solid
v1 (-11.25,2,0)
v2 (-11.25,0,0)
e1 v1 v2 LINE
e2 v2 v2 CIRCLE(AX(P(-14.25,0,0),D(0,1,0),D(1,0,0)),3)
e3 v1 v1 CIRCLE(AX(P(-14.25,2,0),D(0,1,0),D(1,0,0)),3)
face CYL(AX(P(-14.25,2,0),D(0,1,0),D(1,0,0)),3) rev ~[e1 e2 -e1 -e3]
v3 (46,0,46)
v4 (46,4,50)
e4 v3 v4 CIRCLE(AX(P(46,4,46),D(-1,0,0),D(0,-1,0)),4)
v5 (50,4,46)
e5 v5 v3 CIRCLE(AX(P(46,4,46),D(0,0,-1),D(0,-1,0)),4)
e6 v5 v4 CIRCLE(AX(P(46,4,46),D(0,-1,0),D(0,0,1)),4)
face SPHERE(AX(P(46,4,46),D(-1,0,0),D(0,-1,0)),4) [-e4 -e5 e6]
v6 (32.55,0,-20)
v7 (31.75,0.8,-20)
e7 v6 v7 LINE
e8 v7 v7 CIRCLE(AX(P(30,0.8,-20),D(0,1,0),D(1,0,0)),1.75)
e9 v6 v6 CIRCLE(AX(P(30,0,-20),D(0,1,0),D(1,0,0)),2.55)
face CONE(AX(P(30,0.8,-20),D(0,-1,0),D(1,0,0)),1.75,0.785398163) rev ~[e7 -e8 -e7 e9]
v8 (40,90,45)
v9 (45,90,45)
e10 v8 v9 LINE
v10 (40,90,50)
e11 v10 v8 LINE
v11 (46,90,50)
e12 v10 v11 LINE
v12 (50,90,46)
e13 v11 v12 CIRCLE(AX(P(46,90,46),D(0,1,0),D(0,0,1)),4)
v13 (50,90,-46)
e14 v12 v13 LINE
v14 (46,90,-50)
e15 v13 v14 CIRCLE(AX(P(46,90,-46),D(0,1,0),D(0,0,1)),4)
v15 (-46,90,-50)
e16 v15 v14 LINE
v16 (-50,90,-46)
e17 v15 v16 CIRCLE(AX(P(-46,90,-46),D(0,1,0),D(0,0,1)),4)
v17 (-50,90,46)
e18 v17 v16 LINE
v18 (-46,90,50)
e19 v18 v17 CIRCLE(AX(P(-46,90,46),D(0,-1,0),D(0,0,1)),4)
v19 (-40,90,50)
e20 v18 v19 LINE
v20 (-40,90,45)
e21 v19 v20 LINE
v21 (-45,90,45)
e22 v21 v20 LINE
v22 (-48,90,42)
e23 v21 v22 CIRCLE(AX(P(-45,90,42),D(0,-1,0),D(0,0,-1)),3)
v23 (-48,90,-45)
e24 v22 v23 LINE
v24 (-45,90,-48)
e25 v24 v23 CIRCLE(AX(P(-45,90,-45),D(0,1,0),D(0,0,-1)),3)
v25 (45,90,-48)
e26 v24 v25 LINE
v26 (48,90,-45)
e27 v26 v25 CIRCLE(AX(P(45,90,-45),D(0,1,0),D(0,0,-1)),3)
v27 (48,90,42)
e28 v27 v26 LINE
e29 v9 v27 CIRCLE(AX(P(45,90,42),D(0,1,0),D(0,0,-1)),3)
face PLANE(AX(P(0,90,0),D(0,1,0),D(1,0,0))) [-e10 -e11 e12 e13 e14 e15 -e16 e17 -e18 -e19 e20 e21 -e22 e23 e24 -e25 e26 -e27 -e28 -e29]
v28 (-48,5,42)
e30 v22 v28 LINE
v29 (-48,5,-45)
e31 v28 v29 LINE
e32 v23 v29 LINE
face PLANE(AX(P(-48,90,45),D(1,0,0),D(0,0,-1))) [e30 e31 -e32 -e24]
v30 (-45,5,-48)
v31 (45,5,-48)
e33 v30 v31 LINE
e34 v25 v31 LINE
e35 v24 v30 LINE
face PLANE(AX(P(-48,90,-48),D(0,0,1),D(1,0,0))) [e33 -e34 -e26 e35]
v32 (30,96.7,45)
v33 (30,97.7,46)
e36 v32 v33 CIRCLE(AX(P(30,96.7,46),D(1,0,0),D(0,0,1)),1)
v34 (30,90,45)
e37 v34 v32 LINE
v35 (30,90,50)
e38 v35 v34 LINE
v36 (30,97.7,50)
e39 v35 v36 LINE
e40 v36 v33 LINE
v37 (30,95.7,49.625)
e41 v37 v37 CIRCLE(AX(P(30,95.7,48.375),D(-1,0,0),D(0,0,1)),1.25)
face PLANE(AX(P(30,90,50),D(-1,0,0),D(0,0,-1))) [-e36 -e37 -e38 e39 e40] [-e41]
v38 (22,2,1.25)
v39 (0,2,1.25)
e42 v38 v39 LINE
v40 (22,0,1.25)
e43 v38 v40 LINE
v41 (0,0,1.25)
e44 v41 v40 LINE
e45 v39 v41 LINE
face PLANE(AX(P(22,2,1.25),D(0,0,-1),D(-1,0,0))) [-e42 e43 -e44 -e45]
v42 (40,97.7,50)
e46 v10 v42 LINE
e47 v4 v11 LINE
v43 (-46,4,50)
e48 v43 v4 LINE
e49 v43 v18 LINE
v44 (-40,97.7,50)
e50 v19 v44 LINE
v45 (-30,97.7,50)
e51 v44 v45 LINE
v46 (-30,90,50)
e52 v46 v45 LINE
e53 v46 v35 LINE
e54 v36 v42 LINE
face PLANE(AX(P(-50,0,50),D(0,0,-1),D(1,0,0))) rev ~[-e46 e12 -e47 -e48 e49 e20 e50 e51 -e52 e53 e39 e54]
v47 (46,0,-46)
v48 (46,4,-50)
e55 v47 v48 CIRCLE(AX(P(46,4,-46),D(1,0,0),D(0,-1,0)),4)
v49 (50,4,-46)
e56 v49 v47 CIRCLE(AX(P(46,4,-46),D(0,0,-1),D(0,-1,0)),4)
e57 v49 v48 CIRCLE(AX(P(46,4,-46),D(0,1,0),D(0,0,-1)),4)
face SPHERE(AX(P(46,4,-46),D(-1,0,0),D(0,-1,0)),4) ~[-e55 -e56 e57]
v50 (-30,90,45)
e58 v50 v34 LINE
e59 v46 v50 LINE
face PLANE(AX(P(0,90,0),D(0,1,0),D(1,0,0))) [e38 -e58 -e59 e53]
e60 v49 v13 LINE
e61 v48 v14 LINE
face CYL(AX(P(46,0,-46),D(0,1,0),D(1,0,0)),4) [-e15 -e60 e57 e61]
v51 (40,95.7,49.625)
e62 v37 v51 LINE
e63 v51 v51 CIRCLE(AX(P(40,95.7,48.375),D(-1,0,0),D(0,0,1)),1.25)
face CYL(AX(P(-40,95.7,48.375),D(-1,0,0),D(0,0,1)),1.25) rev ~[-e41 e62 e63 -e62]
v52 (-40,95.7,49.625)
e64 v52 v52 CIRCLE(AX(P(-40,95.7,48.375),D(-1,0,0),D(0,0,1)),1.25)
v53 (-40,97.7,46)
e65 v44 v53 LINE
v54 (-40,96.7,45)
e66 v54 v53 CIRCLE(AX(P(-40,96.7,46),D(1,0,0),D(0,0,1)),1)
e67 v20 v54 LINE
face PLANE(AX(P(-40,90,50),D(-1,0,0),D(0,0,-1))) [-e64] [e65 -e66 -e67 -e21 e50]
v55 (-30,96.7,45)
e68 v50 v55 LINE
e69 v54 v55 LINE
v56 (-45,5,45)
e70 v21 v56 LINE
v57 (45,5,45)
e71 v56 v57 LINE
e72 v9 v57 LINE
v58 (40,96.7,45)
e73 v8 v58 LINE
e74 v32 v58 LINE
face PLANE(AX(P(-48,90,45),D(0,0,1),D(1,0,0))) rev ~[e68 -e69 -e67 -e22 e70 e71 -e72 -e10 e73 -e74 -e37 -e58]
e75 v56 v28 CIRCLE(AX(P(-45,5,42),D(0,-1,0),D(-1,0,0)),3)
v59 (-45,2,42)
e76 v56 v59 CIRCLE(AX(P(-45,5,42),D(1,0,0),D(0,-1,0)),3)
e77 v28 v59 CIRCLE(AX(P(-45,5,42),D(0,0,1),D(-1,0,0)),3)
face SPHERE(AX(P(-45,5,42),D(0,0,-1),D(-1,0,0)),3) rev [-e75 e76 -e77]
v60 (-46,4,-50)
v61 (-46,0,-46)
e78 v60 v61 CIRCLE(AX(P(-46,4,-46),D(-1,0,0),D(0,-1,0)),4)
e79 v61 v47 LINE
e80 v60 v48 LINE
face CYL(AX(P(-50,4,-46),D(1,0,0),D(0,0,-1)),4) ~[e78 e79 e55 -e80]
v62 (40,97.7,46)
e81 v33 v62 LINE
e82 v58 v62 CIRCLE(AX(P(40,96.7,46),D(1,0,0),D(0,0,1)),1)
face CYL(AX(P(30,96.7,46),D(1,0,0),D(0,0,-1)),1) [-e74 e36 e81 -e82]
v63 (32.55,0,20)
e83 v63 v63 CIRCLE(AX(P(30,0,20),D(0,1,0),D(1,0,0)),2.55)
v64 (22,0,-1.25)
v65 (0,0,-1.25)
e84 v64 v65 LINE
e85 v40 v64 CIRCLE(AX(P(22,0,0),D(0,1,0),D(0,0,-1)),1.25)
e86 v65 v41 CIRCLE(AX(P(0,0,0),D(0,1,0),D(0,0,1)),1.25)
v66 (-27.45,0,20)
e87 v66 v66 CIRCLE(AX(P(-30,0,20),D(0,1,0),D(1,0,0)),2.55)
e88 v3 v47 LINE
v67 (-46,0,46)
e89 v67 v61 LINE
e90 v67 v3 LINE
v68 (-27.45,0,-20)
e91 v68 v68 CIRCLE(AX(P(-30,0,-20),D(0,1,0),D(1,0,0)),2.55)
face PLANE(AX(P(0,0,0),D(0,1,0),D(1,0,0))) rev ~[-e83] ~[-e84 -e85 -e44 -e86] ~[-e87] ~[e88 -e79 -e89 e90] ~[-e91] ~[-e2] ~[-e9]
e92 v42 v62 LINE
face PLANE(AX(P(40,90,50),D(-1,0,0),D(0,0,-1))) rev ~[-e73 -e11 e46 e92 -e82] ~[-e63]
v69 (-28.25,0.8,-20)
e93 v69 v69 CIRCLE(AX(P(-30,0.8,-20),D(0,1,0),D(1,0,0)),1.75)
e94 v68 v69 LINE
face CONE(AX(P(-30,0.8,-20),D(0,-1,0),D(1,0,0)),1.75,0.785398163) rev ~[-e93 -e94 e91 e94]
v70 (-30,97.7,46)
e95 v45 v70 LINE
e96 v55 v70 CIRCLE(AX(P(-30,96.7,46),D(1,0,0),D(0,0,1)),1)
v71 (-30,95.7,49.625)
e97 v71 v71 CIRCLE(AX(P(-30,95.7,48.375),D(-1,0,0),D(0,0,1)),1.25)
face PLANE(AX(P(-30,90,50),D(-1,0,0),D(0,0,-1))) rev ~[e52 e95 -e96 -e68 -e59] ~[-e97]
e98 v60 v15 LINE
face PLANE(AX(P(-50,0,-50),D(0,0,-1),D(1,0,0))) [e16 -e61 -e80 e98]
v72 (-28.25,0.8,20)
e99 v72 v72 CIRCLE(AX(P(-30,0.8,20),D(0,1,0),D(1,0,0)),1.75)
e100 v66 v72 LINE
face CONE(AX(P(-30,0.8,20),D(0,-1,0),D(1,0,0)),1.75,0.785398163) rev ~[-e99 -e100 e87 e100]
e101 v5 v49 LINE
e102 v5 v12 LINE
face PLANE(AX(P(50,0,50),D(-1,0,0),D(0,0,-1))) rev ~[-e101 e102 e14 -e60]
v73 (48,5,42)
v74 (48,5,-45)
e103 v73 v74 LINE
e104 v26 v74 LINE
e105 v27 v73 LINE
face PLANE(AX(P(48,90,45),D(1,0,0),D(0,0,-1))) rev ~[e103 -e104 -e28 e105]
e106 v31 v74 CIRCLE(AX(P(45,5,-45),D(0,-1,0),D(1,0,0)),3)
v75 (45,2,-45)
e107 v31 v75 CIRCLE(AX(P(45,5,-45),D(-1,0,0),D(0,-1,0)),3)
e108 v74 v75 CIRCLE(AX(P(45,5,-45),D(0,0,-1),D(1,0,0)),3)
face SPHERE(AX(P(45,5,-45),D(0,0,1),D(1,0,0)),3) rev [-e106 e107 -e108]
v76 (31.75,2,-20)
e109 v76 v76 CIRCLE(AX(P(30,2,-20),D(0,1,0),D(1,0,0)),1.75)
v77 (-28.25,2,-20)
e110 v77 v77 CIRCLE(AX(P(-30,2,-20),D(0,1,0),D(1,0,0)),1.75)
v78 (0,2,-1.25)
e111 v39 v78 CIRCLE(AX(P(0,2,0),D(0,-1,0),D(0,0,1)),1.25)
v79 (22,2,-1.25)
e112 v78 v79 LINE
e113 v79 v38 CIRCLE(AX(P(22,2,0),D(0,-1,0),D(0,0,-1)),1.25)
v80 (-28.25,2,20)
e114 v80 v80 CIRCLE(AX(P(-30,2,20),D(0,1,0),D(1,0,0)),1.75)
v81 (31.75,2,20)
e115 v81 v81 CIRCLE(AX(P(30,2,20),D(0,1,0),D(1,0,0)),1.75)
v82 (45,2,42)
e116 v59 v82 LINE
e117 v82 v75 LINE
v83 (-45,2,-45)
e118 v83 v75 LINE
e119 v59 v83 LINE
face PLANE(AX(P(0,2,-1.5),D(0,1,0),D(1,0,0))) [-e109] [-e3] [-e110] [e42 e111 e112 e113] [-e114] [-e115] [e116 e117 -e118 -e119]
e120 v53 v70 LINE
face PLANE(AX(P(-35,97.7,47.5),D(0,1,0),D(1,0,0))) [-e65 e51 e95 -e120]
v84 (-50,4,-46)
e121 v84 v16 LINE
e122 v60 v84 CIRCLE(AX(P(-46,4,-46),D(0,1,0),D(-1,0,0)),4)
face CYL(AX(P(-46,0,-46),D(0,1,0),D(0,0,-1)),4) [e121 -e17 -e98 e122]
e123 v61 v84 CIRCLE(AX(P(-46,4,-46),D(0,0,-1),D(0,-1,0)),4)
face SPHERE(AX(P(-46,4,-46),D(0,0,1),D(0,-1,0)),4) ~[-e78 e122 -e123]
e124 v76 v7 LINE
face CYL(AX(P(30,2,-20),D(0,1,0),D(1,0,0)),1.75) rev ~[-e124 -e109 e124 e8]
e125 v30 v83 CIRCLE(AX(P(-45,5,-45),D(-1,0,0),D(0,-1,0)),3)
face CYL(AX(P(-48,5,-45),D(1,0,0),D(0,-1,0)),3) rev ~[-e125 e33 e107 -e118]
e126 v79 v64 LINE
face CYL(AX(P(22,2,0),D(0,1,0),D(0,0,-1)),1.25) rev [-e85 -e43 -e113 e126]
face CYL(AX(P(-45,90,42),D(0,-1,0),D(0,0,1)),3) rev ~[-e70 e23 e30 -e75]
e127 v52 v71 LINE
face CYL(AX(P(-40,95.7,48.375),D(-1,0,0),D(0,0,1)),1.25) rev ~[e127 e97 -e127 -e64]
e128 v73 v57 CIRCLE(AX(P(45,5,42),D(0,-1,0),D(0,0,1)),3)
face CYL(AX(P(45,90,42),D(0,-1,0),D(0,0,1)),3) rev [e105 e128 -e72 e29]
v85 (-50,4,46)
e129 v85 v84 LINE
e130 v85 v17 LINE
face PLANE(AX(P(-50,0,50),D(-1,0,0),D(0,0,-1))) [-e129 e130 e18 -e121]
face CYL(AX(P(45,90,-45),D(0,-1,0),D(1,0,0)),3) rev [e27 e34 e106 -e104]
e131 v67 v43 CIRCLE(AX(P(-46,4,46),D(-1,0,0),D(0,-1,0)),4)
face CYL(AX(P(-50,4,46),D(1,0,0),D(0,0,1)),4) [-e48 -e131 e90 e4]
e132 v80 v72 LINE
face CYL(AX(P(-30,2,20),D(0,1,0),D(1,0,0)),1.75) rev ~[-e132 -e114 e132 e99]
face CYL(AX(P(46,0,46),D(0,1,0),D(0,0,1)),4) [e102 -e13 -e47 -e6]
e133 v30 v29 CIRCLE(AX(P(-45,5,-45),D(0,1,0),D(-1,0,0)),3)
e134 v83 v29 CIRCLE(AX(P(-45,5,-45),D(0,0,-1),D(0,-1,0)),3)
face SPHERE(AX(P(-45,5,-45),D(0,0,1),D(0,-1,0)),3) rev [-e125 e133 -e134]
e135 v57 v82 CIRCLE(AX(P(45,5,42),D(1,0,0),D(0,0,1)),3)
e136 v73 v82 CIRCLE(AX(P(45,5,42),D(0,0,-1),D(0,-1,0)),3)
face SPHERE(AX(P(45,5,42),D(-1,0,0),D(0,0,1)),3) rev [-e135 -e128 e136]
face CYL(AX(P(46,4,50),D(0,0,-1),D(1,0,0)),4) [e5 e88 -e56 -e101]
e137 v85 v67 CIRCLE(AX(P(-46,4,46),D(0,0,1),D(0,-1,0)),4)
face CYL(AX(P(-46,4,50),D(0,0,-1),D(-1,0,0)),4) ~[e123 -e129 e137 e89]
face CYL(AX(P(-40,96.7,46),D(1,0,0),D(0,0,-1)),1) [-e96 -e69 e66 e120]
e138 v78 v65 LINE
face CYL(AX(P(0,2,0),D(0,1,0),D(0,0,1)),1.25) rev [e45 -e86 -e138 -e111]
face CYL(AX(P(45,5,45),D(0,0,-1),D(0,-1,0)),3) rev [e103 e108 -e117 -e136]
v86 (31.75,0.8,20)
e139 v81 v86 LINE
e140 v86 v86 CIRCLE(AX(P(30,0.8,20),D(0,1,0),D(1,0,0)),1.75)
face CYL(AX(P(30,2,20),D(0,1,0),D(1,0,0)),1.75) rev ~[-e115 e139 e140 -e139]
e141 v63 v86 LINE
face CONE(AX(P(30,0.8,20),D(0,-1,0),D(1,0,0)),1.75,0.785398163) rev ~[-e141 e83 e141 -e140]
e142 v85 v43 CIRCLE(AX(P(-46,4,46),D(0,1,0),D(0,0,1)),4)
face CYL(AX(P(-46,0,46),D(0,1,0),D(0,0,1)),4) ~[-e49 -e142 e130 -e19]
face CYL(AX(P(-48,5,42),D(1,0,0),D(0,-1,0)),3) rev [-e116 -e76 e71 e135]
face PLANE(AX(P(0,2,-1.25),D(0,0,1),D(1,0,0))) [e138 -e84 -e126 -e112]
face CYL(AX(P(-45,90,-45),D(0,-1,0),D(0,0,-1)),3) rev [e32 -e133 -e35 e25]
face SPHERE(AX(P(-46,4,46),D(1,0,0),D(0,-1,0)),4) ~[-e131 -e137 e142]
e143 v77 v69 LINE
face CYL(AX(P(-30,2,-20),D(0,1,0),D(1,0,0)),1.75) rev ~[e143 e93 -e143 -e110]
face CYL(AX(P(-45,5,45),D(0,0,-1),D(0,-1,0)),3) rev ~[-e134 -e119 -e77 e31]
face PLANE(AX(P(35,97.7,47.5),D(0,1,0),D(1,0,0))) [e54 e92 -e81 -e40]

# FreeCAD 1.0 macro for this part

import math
import FreeCAD as App
import Part
import Sketcher

V = App.Vector


def edges_at(feature, points):
    """Names of the edges that pass closest to the given points."""
    edges = feature.Shape.Edges
    near = lambda p: min(range(len(edges)), key=lambda i: edges[i].distToShape(Part.Vertex(*p))[0])
    return sorted({f"Edge{near(p) + 1}" for p in points})

doc = App.newDocument("Part")
body = doc.addObject("PartDesign::Body", "Body")

# Sketch on XZ plane
sketch1 = body.newObject("Sketcher::SketchObject", "Sketch")
sketch1.AttachmentSupport = (doc.getObject("XZ_Plane"), [""])
sketch1.MapMode = "FlatFace"
sketch1.addGeometry([
    Part.LineSegment(V(-50, -50, 0), V(-50, 50, 0)),
    Part.LineSegment(V(-50, 50, 0), V(50, 50, 0)),
    Part.LineSegment(V(50, 50, 0), V(50, -50, 0)),
    Part.LineSegment(V(50, -50, 0), V(-50, -50, 0)),
], False)
sketch1.addConstraint([
    Sketcher.Constraint("Coincident", 0, 2, 1, 1),
    Sketcher.Constraint("Coincident", 1, 2, 2, 1),
    Sketcher.Constraint("Coincident", 2, 2, 3, 1),
    Sketcher.Constraint("Coincident", 3, 2, 0, 1),
    Sketcher.Constraint("Vertical", 0),
    Sketcher.Constraint("Horizontal", 1),
    Sketcher.Constraint("Vertical", 2),
    Sketcher.Constraint("Horizontal", 3),
    Sketcher.Constraint("Symmetric", 0, 2, 2, 2, -1, 1),
    Sketcher.Constraint("Equal", 3, 0),
    Sketcher.Constraint("DistanceX", 1, 1, 1, 2, 100.0),
])
pad1 = body.newObject("PartDesign::Pad", "Pad")
pad1.Profile = sketch1
pad1.Length = 90
pad1.Reversed = True

# Sketch on XZ plane
sketch2 = body.newObject("Sketcher::SketchObject", "Sketch001")
sketch2.AttachmentSupport = (doc.getObject("XZ_Plane"), [""])
sketch2.MapMode = "FlatFace"
sketch2.AttachmentOffset = App.Placement(V(0, 0, -90), App.Rotation())
sketch2.addGeometry([
    Part.LineSegment(V(-48, -48, 0), V(-48, 45, 0)),
    Part.LineSegment(V(-48, 45, 0), V(48, 45, 0)),
    Part.LineSegment(V(48, 45, 0), V(48, -48, 0)),
    Part.LineSegment(V(48, -48, 0), V(-48, -48, 0)),
], False)
sketch2.addConstraint([
    Sketcher.Constraint("Coincident", 0, 2, 1, 1),
    Sketcher.Constraint("Coincident", 1, 2, 2, 1),
    Sketcher.Constraint("Coincident", 2, 2, 3, 1),
    Sketcher.Constraint("Coincident", 3, 2, 0, 1),
    Sketcher.Constraint("Vertical", 0),
    Sketcher.Constraint("Horizontal", 1),
    Sketcher.Constraint("Vertical", 2),
    Sketcher.Constraint("Horizontal", 3),
    Sketcher.Constraint("DistanceX", 1, 1, 1, 2, 96.0),
    Sketcher.Constraint("DistanceY", 0, 1, 0, 2, 93.0),
    Sketcher.Constraint("DistanceX", 0, 2, -1, 1, 48.0),
    Sketcher.Constraint("DistanceY", -1, 1, 0, 2, 45.0),
])
pocket1 = body.newObject("PartDesign::Pocket", "Pocket")
pocket1.Profile = sketch2
pocket1.Length = 88
pocket1.Reversed = True

# Sketch on XZ plane
sketch3 = body.newObject("Sketcher::SketchObject", "Sketch002")
sketch3.AttachmentSupport = (doc.getObject("XZ_Plane"), [""])
sketch3.MapMode = "FlatFace"
sketch3.AttachmentOffset = App.Placement(V(0, 0, -2), App.Rotation())
sketch3.addGeometry(Part.Circle(V(-14.2, 0, 0), V(0, 0, 1), 3), False)
sketch3.addConstraint([
    Sketcher.Constraint("PointOnObject", 0, 3, -1),
    Sketcher.Constraint("Diameter", 0, 6.0),
    Sketcher.Constraint("DistanceX", 0, 3, -1, 1, 14.25),
])
pocket2 = body.newObject("PartDesign::Pocket", "Pocket001")
pocket2.Profile = sketch3
pocket2.Type = "UpToFirst"
pocket2.Reversed = True

# Sketch on XZ plane
sketch4 = body.newObject("Sketcher::SketchObject", "Sketch003")
sketch4.AttachmentSupport = (doc.getObject("XZ_Plane"), [""])
sketch4.MapMode = "FlatFace"
sketch4.AttachmentOffset = App.Placement(V(0, 0, -2), App.Rotation())
sketch4.addGeometry(Part.Circle(V(-30, -20, 0), V(0, 0, 1), 1.8), False)
sketch4.addConstraint([
    Sketcher.Constraint("Diameter", 0, 3.5),
    Sketcher.Constraint("DistanceX", 0, 3, -1, 1, 30.0),
    Sketcher.Constraint("DistanceY", 0, 3, -1, 1, 20.0),
])
pocket3 = body.newObject("PartDesign::Pocket", "Pocket002")
pocket3.Profile = sketch4
pocket3.Type = "UpToFirst"
pocket3.Reversed = True

# Sketch on XZ plane
sketch5 = body.newObject("Sketcher::SketchObject", "Sketch004")
sketch5.AttachmentSupport = (doc.getObject("XZ_Plane"), [""])
sketch5.MapMode = "FlatFace"
sketch5.AttachmentOffset = App.Placement(V(0, 0, -2), App.Rotation())
sketch5.addGeometry(Part.Circle(V(-30, 20, 0), V(0, 0, 1), 1.8), False)
sketch5.addConstraint([
    Sketcher.Constraint("Diameter", 0, 3.5),
    Sketcher.Constraint("DistanceX", 0, 3, -1, 1, 30.0),
    Sketcher.Constraint("DistanceY", -1, 1, 0, 3, 20.0),
])
pocket4 = body.newObject("PartDesign::Pocket", "Pocket003")
pocket4.Profile = sketch5
pocket4.Type = "UpToFirst"
pocket4.Reversed = True

# Sketch on XZ plane
sketch6 = body.newObject("Sketcher::SketchObject", "Sketch005")
sketch6.AttachmentSupport = (doc.getObject("XZ_Plane"), [""])
sketch6.MapMode = "FlatFace"
sketch6.AttachmentOffset = App.Placement(V(0, 0, -2), App.Rotation())
sketch6.addGeometry(Part.Circle(V(30, 20, 0), V(0, 0, 1), 1.8), False)
sketch6.addConstraint([
    Sketcher.Constraint("Diameter", 0, 3.5),
    Sketcher.Constraint("DistanceX", -1, 1, 0, 3, 30.0),
    Sketcher.Constraint("DistanceY", -1, 1, 0, 3, 20.0),
])
pocket5 = body.newObject("PartDesign::Pocket", "Pocket004")
pocket5.Profile = sketch6
pocket5.Type = "UpToFirst"
pocket5.Reversed = True

# Sketch on XZ plane
sketch7 = body.newObject("Sketcher::SketchObject", "Sketch006")
sketch7.AttachmentSupport = (doc.getObject("XZ_Plane"), [""])
sketch7.MapMode = "FlatFace"
sketch7.AttachmentOffset = App.Placement(V(0, 0, -2), App.Rotation())
sketch7.addGeometry(Part.Circle(V(30, -20, 0), V(0, 0, 1), 1.8), False)
sketch7.addConstraint([
    Sketcher.Constraint("Diameter", 0, 3.5),
    Sketcher.Constraint("DistanceX", -1, 1, 0, 3, 30.0),
    Sketcher.Constraint("DistanceY", 0, 3, -1, 1, 20.0),
])
pocket6 = body.newObject("PartDesign::Pocket", "Pocket005")
pocket6.Profile = sketch7
pocket6.Type = "UpToFirst"
pocket6.Reversed = True

# Sketch on XZ plane
sketch8 = body.newObject("Sketcher::SketchObject", "Sketch007")
sketch8.AttachmentSupport = (doc.getObject("XZ_Plane"), [""])
sketch8.MapMode = "FlatFace"
sketch8.AttachmentOffset = App.Placement(V(0, 0, -2), App.Rotation())
sketch8.addGeometry([
    Part.LineSegment(V(22, -1.2, 0), V(0, -1.2, 0)),
    Part.ArcOfCircle(Part.Circle(V(0, 0, 0), V(0, 0, 1), 1.2), math.radians(90), math.radians(270)),
    Part.LineSegment(V(0, 1.2, 0), V(22, 1.2, 0)),
    Part.ArcOfCircle(Part.Circle(V(22, 0, 0), V(0, 0, 1), 1.2), math.radians(-90), math.radians(90)),
], False)
sketch8.addConstraint([
    Sketcher.Constraint("Tangent", 0, 2, 1, 2),
    Sketcher.Constraint("Tangent", 1, 1, 2, 1),
    Sketcher.Constraint("Tangent", 2, 2, 3, 2),
    Sketcher.Constraint("Tangent", 3, 1, 0, 1),
    Sketcher.Constraint("Horizontal", 0),
    Sketcher.Constraint("Horizontal", 2),
    Sketcher.Constraint("Coincident", 1, 3, -1, 1),
    Sketcher.Constraint("DistanceX", 0, 2, 0, 1, 22.0),
    Sketcher.Constraint("Radius", 1, 1.25),
])
pocket7 = body.newObject("PartDesign::Pocket", "Pocket006")
pocket7.Profile = sketch8
pocket7.Type = "UpToFirst"
pocket7.Reversed = True
doc.recompute()

chamfer = body.newObject("PartDesign::Chamfer", "Chamfer")
chamfer.Base = (pocket7, edges_at(pocket7, [
    (-31.75, 0, -20),
    (-31.75, 0, 20),
    (28.25, 0, 20),
    (28.25, 0, -20),
]))
chamfer.Size = 0.8

# Sketch on XZ plane
sketch9 = body.newObject("Sketcher::SketchObject", "Sketch008")
sketch9.AttachmentSupport = (doc.getObject("XZ_Plane"), [""])
sketch9.MapMode = "FlatFace"
sketch9.AttachmentOffset = App.Placement(V(0, 0, -90), App.Rotation())
sketch9.addGeometry([
    Part.LineSegment(V(-40, 45, 0), V(-40, 50, 0)),  # 0
    Part.LineSegment(V(-40, 50, 0), V(-30, 50, 0)),  # 1
    Part.LineSegment(V(-30, 50, 0), V(-30, 45, 0)),  # 2
    Part.LineSegment(V(-30, 45, 0), V(-40, 45, 0)),  # 3
    Part.LineSegment(V(30, 45, 0), V(30, 50, 0)),  # 4
    Part.LineSegment(V(30, 50, 0), V(40, 50, 0)),  # 5
    Part.LineSegment(V(40, 50, 0), V(40, 45, 0)),  # 6
    Part.LineSegment(V(40, 45, 0), V(30, 45, 0)),  # 7
], False)
sketch9.addConstraint([
    Sketcher.Constraint("Coincident", 0, 2, 1, 1),
    Sketcher.Constraint("Coincident", 1, 2, 2, 1),
    Sketcher.Constraint("Coincident", 2, 2, 3, 1),
    Sketcher.Constraint("Coincident", 3, 2, 0, 1),
    Sketcher.Constraint("Coincident", 4, 2, 5, 1),
    Sketcher.Constraint("Coincident", 5, 2, 6, 1),
    Sketcher.Constraint("Coincident", 6, 2, 7, 1),
    Sketcher.Constraint("Coincident", 7, 2, 4, 1),
    Sketcher.Constraint("Vertical", 0),
    Sketcher.Constraint("Horizontal", 1),
    Sketcher.Constraint("Vertical", 2),
    Sketcher.Constraint("Horizontal", 3),
    Sketcher.Constraint("Vertical", 4),
    Sketcher.Constraint("Horizontal", 5),
    Sketcher.Constraint("Vertical", 6),
    Sketcher.Constraint("Horizontal", 7),
    Sketcher.Constraint("Symmetric", 1, 2, 4, 2, -2),
    Sketcher.Constraint("Symmetric", 3, 2, 6, 2, -2),
    Sketcher.Constraint("DistanceX", 1, 1, 1, 2, 10.0),
    Sketcher.Constraint("DistanceY", 0, 1, 0, 2, 5.0),
    Sketcher.Constraint("DistanceX", 0, 2, -1, 1, 40.0),
    Sketcher.Constraint("DistanceY", -1, 1, 0, 2, 50.0),
])
pad2 = body.newObject("PartDesign::Pad", "Pad001")
pad2.Profile = sketch9
pad2.Length = 7.7
pad2.Reversed = True

# Sketch on YZ plane
sketch10 = body.newObject("Sketcher::SketchObject", "Sketch009")
sketch10.AttachmentSupport = (doc.getObject("YZ_Plane"), [""])
sketch10.MapMode = "FlatFace"
sketch10.AttachmentOffset = App.Placement(V(0, 0, -40), App.Rotation())
sketch10.addGeometry(Part.Circle(V(95.7, 48.4, 0), V(0, 0, 1), 1.2), False)
sketch10.addConstraint([
    Sketcher.Constraint("Diameter", 0, 2.5),
    Sketcher.Constraint("DistanceX", -1, 1, 0, 3, 95.7),
    Sketcher.Constraint("DistanceY", -1, 1, 0, 3, 48.375),
])
pocket8 = body.newObject("PartDesign::Pocket", "Pocket007")
pocket8.Profile = sketch10
pocket8.Type = "ThroughAll"
pocket8.Reversed = True
doc.recompute()

fillet = body.newObject("PartDesign::Fillet", "Fillet")
fillet.Base = (pocket8, edges_at(pocket8, [
    (-48, 2, -1.5),
    (-48, 46, 45),
    (0, 2, 45),
    (48, 46, 45),
    (48, 2, -1.5),
    (48, 46, -48),
    (0, 2, -48),
    (-48, 46, -48),
]))
fillet.Radius = 3
doc.recompute()

fillet2 = body.newObject("PartDesign::Fillet", "Fillet001")
fillet2.Base = (fillet, edges_at(fillet, [
    (0, 0, 50),
    (-50, 0, 0),
    (0, 0, -50),
    (50, 0, 0),
    (50, 45, 50),
    (-50, 45, 50),
    (-50, 45, -50),
    (50, 45, -50),
]))
fillet2.Radius = 4
doc.recompute()

fillet3 = body.newObject("PartDesign::Fillet", "Fillet002")
fillet3.Base = (fillet2, edges_at(fillet2, [(-35, 97.7, 45), (35, 97.7, 45)]))
fillet3.Radius = 1

doc.recompute()
